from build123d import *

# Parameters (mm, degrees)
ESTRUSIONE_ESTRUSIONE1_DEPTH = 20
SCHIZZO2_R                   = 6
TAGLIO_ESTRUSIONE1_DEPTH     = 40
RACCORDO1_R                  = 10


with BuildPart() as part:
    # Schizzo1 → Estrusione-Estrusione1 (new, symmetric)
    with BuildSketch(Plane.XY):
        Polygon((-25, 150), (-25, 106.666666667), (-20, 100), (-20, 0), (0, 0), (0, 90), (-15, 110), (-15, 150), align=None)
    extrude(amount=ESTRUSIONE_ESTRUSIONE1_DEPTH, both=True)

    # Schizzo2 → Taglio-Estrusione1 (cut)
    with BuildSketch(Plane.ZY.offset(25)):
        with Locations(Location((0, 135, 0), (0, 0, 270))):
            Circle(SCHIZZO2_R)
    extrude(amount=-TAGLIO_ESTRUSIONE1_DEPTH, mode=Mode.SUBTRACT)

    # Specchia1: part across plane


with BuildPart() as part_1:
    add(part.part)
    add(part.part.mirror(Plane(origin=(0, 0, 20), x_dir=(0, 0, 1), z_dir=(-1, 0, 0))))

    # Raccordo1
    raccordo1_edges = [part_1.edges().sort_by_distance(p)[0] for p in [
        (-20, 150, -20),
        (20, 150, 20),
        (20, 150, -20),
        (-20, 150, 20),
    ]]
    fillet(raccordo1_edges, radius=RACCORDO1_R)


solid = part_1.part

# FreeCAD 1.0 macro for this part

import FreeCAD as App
import Part
import Sketcher
Q = App.Units.Quantity


def edges_at(feature, points):
    """Names of the edges that pass closest to the given points."""
    edges = feature.Shape.Edges
    near = lambda p: min(range(len(edges)), key=lambda i: edges[i].distToShape(Part.Vertex(*p))[0])
    return sorted({f"Edge{near(p) + 1}" for p in points})


def add_polygon(sketch, points):
    """Adds a closed chain of lines whose ends are joined by coincident constraints."""
    first, n = sketch.GeometryCount, len(points)
    for a, b in zip(points, points[1:] + points[:1]):
        sketch.addGeometry(Part.LineSegment(App.Vector(*a, 0), App.Vector(*b, 0)), False)
    for i in range(n):
        sketch.addConstraint(Sketcher.Constraint("Coincident", first + i, 2, first + (i + 1) % n, 1))

doc = App.newDocument("Part")
body = doc.addObject("PartDesign::Body", "Body")

# Sketch on XY plane
sketch1 = body.newObject("Sketcher::SketchObject", "Sketch")
sketch1.AttachmentSupport = (doc.getObject("XY_Plane"), [""])
sketch1.MapMode = "FlatFace"
add_polygon(sketch1, [(-25, 150), (-25, 107), (-20, 100), (-20, 0), (0, 0), (0, 90), (-15, 110), (-15, 150)])  # lines 0-7
sketch1.addConstraint(Sketcher.Constraint("Vertical", 0))
sketch1.addConstraint(Sketcher.Constraint("Vertical", 2))
sketch1.addConstraint(Sketcher.Constraint("Horizontal", 3))
sketch1.addConstraint(Sketcher.Constraint("Vertical", 4))
sketch1.addConstraint(Sketcher.Constraint("Vertical", 6))
sketch1.addConstraint(Sketcher.Constraint("Horizontal", 7))
sketch1.addConstraint(Sketcher.Constraint("Coincident", 3, 2, -1, 1))
sketch1.addConstraint(Sketcher.Constraint("Parallel", 1, 5))
sketch1.addConstraint(Sketcher.Constraint("DistanceX", 3, 1, 3, 2, Q("20 mm")))
sketch1.addConstraint(Sketcher.Constraint("DistanceX", 7, 2, 7, 1, Q("10 mm")))
sketch1.addConstraint(Sketcher.Constraint("DistanceY", 2, 2, 2, 1, Q("100 mm")))
sketch1.addConstraint(Sketcher.Constraint("DistanceY", 4, 1, 4, 2, Q("90 mm")))
sketch1.addConstraint(Sketcher.Constraint("DistanceY", 6, 1, 6, 2, Q("40 mm")))
sketch1.addConstraint(Sketcher.Constraint("Distance", 5, Q("25 mm")))
sketch1.addConstraint(Sketcher.Constraint("DistanceX", 0, 2, -1, 1, Q("25 mm")))
pad1 = body.newObject("PartDesign::Pad", "Pad")
pad1.Profile = sketch1
pad1.Length = 40
pad1.Midplane = True

# Sketch on YZ plane
sketch2 = body.newObject("Sketcher::SketchObject", "Sketch001")
sketch2.AttachmentSupport = (doc.getObject("YZ_Plane"), [""])
sketch2.MapMode = "FlatFace"
sketch2.AttachmentOffset = App.Placement(App.Vector(0, 0, -25), App.Rotation())
sketch2.addGeometry(Part.Circle(App.Vector(135, 0, 0), App.Vector(0, 0, 1), 6), False)
sketch2.addConstraint(Sketcher.Constraint("PointOnObject", 0, 3, -1))
sketch2.addConstraint(Sketcher.Constraint("Diameter", 0, Q("12 mm")))
sketch2.addConstraint(Sketcher.Constraint("DistanceX", -1, 1, 0, 3, Q("135 mm")))
pocket1 = body.newObject("PartDesign::Pocket", "Pocket")
pocket1.Profile = sketch2
pocket1.Length = 40
pocket1.Reversed = True
body2 = doc.addObject("PartDesign::Body", "Body001")
doc.recompute()

body2.BaseFeature = body
doc.recompute()

mirroring = doc.addObject("Part::Mirroring", "Mirroring")
mirroring.Source = body
mirroring.Base = App.Vector(0, 0, 20)
mirroring.Normal = App.Vector(-1, 0, 0)
body3 = doc.addObject("PartDesign::Body", "Body002")
body3.BaseFeature = mirroring
boolean = body2.newObject("PartDesign::Boolean", "Boolean")
boolean.Type = "Fuse"
boolean.addObjects([body3])
doc.recompute()

fillet = body2.newObject("PartDesign::Fillet", "Fillet")
fillet.Base = (boolean, edges_at(boolean, [
    (-20, 150, -20),
    (20, 150, 20),
    (20, 150, -20),
    (-20, 150, 20),
]))
fillet.Radius = 10
mirroring.Visibility = False

doc.recompute()
